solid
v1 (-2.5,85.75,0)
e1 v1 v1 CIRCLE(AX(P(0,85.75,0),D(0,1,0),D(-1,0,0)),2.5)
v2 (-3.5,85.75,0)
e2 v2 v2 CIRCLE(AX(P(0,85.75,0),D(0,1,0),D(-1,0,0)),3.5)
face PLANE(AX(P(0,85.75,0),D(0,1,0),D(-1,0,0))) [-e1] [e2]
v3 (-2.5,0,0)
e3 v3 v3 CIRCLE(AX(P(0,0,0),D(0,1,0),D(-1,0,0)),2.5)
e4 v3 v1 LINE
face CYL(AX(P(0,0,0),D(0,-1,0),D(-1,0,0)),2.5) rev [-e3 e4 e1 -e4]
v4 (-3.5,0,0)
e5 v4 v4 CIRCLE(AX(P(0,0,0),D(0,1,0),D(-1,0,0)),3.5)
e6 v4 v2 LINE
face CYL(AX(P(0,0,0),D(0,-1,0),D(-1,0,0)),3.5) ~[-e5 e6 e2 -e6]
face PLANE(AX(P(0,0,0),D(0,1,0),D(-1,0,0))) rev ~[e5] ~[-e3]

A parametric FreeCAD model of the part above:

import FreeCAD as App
import Part
import Sketcher

V = App.Vector

doc = App.newDocument("Part")
body = doc.addObject("PartDesign::Body", "Body")

# Sketch on XZ plane
sketch1 = body.newObject("Sketcher::SketchObject", "Sketch")
sketch1.AttachmentSupport = (doc.getObject("XZ_Plane"), [""])
sketch1.MapMode = "FlatFace"
sketch1.addGeometry([
    Part.Circle(V(0, 0, 0), V(0, 0, 1), 3.5),
    Part.Circle(V(0, 0, 0), V(0, 0, 1), 2.5),
], False)
sketch1.addConstraint([
    Sketcher.Constraint("Coincident", 0, 3, -1, 1),
    Sketcher.Constraint("Coincident", 1, 3, -1, 1),
    Sketcher.Constraint("Diameter", 0, 7.0),
    Sketcher.Constraint("Diameter", 1, 5.0),
])
pad1 = body.newObject("PartDesign::Pad", "Pad")
pad1.Profile = sketch1
pad1.Length = 85.75
pad1.Reversed = True

doc.recompute()
